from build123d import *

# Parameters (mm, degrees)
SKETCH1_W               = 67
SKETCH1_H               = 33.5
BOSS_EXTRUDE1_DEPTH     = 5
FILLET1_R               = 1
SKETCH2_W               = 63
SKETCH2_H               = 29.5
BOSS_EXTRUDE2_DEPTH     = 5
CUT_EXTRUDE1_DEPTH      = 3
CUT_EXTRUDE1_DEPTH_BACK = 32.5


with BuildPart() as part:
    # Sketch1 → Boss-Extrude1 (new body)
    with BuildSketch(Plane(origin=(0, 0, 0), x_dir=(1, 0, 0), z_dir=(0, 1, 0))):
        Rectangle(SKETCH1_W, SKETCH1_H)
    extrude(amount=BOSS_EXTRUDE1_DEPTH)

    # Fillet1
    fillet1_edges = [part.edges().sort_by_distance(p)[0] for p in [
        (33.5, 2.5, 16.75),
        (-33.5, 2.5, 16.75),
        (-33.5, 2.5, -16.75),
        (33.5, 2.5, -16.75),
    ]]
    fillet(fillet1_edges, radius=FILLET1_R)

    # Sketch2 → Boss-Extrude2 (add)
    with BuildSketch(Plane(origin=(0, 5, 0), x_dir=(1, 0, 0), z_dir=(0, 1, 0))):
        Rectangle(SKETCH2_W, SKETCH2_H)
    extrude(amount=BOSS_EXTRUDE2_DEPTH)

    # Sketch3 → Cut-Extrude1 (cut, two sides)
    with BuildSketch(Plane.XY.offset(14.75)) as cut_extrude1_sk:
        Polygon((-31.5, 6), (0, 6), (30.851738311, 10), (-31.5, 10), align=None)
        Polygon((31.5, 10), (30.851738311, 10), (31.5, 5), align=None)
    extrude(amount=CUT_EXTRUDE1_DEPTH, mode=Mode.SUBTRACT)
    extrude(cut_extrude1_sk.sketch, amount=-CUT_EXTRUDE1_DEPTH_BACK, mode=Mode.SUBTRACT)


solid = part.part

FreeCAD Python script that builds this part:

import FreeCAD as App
import Part
import Sketcher


def edges_at(feature, points):
    """Names of the edges that pass closest to the given points."""
    edges = feature.Shape.Edges
    near = lambda p: min(range(len(edges)), key=lambda i: edges[i].distToShape(Part.Vertex(*p))[0])
    return sorted({f"Edge{near(p) + 1}" for p in points})

doc = App.newDocument("Part")
params = doc.addObject("Spreadsheet::Sheet", "Params")
for row, (alias, value) in enumerate([
    ("sketch1_width", "67 mm"),
    ("sketch1_height", "33.5 mm"),
    ("pad1_length", "5 mm"),
    ("fillet_radius", "1 mm"),
    ("sketch2_width", "63 mm"),
    ("sketch2_height", "29.5 mm"),
    ("pad2_length", "5 mm"),
    ("sketch3_height", "4 mm"),
    ("sketch3_height2", "5 mm"),
    ("sketch3_width", "31.5 mm"),
], start=1):
    params.set(f"A{row}", alias)
    params.set(f"B{row}", "=" + value)
    params.setAlias(f"B{row}", alias)

body = doc.addObject("PartDesign::Body", "Body")

sketch1 = doc.addObject("Sketcher::SketchObject", "Sketch")
body.addObject(sketch1)
sketch1.AttachmentSupport = (doc.XZ_Plane, [""])
sketch1.MapMode = "FlatFace"
sketch1.addGeometry([
    Part.LineSegment(App.Vector(-33.5, -16.75, 0), App.Vector(-33.5, 16.75, 0)),
    Part.LineSegment(App.Vector(-33.5, 16.75, 0), App.Vector(33.5, 16.75, 0)),
    Part.LineSegment(App.Vector(33.5, 16.75, 0), App.Vector(33.5, -16.75, 0)),
    Part.LineSegment(App.Vector(33.5, -16.75, 0), App.Vector(-33.5, -16.75, 0)),
], False)
sketch1.addConstraint([
    Sketcher.Constraint("Coincident", 0, 2, 1, 1),
    Sketcher.Constraint("Coincident", 1, 2, 2, 1),
    Sketcher.Constraint("Coincident", 2, 2, 3, 1),
    Sketcher.Constraint("Coincident", 3, 2, 0, 1),
    Sketcher.Constraint("Vertical", 0),
    Sketcher.Constraint("Horizontal", 1),
    Sketcher.Constraint("Vertical", 2),
    Sketcher.Constraint("Horizontal", 3),
    Sketcher.Constraint("Symmetric", 0, 2, 2, 2, -1, 1),
    Sketcher.Constraint("DistanceX", 1, 1, 1, 2, 67.0),
    Sketcher.Constraint("DistanceY", 0, 1, 0, 2, 33.5),
])
sketch1.setExpression("Constraints[9]", "Params.sketch1_width")
sketch1.setExpression("Constraints[10]", "Params.sketch1_height")
pad1 = doc.addObject("PartDesign::Pad", "Pad")
body.addObject(pad1)
pad1.Profile = sketch1
pad1.setExpression("Length", "Params.pad1_length")
pad1.Reversed = True
doc.recompute()

fillet = doc.addObject("PartDesign::Fillet", "Fillet")
body.addObject(fillet)
fillet.Base = (pad1, edges_at(pad1, [
    (33.5, 2.5, 16.75),
    (-33.5, 2.5, 16.75),
    (-33.5, 2.5, -16.75),
    (33.5, 2.5, -16.75),
]))
fillet.setExpression("Radius", "Params.fillet_radius")

sketch2 = doc.addObject("Sketcher::SketchObject", "Sketch001")
body.addObject(sketch2)
sketch2.AttachmentSupport = (doc.XZ_Plane, [""])
sketch2.MapMode = "FlatFace"
sketch2.AttachmentOffset = App.Placement(App.Vector(0, 0, -5), App.Rotation())
sketch2.addGeometry([
    Part.LineSegment(App.Vector(-31.5, -14.75, 0), App.Vector(-31.5, 14.75, 0)),
    Part.LineSegment(App.Vector(-31.5, 14.75, 0), App.Vector(31.5, 14.75, 0)),
    Part.LineSegment(App.Vector(31.5, 14.75, 0), App.Vector(31.5, -14.75, 0)),
    Part.LineSegment(App.Vector(31.5, -14.75, 0), App.Vector(-31.5, -14.75, 0)),
], False)
sketch2.addConstraint([
    Sketcher.Constraint("Coincident", 0, 2, 1, 1),
    Sketcher.Constraint("Coincident", 1, 2, 2, 1),
    Sketcher.Constraint("Coincident", 2, 2, 3, 1),
    Sketcher.Constraint("Coincident", 3, 2, 0, 1),
    Sketcher.Constraint("Vertical", 0),
    Sketcher.Constraint("Horizontal", 1),
    Sketcher.Constraint("Vertical", 2),
    Sketcher.Constraint("Horizontal", 3),
    Sketcher.Constraint("Symmetric", 0, 2, 2, 2, -1, 1),
    Sketcher.Constraint("DistanceX", 1, 1, 1, 2, 63.0),
    Sketcher.Constraint("DistanceY", 0, 1, 0, 2, 29.5),
])
sketch2.setExpression("Constraints[9]", "Params.sketch2_width")
sketch2.setExpression("Constraints[10]", "Params.sketch2_height")
pad2 = doc.addObject("PartDesign::Pad", "Pad001")
body.addObject(pad2)
pad2.Profile = sketch2
pad2.setExpression("Length", "Params.pad2_length")
pad2.Reversed = True

sketch3 = doc.addObject("Sketcher::SketchObject", "Sketch002")
body.addObject(sketch3)
sketch3.AttachmentSupport = (doc.XY_Plane, [""])
sketch3.MapMode = "FlatFace"
sketch3.AttachmentOffset = App.Placement(App.Vector(0, 0, 14.75), App.Rotation())
sketch3.addGeometry([
    Part.LineSegment(App.Vector(-31.5, 6, 0), App.Vector(0, 6, 0)),
    Part.LineSegment(App.Vector(0, 6, 0), App.Vector(30.851738, 10, 0)),
    Part.LineSegment(App.Vector(30.851738, 10, 0), App.Vector(-31.5, 10, 0)),
    Part.LineSegment(App.Vector(-31.5, 10, 0), App.Vector(-31.5, 6, 0)),
    Part.LineSegment(App.Vector(31.5, 10, 0), App.Vector(30.851738, 10, 0)),
    Part.LineSegment(App.Vector(30.851738, 10, 0), App.Vector(31.5, 5, 0)),
    Part.LineSegment(App.Vector(31.5, 5, 0), App.Vector(31.5, 10, 0)),
], False)
sketch3.addConstraint([
    Sketcher.Constraint("Coincident", 0, 2, 1, 1),
    Sketcher.Constraint("Coincident", 1, 2, 2, 1),
    Sketcher.Constraint("Coincident", 2, 2, 3, 1),
    Sketcher.Constraint("Coincident", 3, 2, 0, 1),
    Sketcher.Constraint("Coincident", 4, 2, 5, 1),
    Sketcher.Constraint("Coincident", 5, 2, 6, 1),
    Sketcher.Constraint("Coincident", 6, 2, 4, 1),
    Sketcher.Constraint("Horizontal", 0),
    Sketcher.Constraint("Horizontal", 2),
    Sketcher.Constraint("Vertical", 3),
    Sketcher.Constraint("Horizontal", 4),
    Sketcher.Constraint("Vertical", 6),
    Sketcher.Constraint("Coincident", 4, 2, 1, 2),
    Sketcher.Constraint("PointOnObject", 0, 2, -2),
    Sketcher.Constraint("Perpendicular", 1, 5),
    Sketcher.Constraint("DistanceY", 3, 2, 3, 1, 4.0),
    Sketcher.Constraint("DistanceY", 6, 1, 6, 2, 5.0),
    Sketcher.Constraint("DistanceX", 0, 1, 0, 2, 31.5),
    Sketcher.Constraint("DistanceY", -1, 1, 0, 2, 6.0),
    Sketcher.Constraint("DistanceX", 3, 2, 5, 2, 63.0),
])
sketch3.setExpression("Constraints[15]", "Params.sketch3_height")
sketch3.setExpression("Constraints[16]", "Params.sketch3_height2")
sketch3.setExpression("Constraints[17]", "Params.sketch3_width")
pocket1 = doc.addObject("PartDesign::Pocket", "Pocket")
body.addObject(pocket1)
pocket1.Profile = sketch3
pocket1.Type = "ThroughAll"
pocket1.Midplane = True

doc.recompute()
